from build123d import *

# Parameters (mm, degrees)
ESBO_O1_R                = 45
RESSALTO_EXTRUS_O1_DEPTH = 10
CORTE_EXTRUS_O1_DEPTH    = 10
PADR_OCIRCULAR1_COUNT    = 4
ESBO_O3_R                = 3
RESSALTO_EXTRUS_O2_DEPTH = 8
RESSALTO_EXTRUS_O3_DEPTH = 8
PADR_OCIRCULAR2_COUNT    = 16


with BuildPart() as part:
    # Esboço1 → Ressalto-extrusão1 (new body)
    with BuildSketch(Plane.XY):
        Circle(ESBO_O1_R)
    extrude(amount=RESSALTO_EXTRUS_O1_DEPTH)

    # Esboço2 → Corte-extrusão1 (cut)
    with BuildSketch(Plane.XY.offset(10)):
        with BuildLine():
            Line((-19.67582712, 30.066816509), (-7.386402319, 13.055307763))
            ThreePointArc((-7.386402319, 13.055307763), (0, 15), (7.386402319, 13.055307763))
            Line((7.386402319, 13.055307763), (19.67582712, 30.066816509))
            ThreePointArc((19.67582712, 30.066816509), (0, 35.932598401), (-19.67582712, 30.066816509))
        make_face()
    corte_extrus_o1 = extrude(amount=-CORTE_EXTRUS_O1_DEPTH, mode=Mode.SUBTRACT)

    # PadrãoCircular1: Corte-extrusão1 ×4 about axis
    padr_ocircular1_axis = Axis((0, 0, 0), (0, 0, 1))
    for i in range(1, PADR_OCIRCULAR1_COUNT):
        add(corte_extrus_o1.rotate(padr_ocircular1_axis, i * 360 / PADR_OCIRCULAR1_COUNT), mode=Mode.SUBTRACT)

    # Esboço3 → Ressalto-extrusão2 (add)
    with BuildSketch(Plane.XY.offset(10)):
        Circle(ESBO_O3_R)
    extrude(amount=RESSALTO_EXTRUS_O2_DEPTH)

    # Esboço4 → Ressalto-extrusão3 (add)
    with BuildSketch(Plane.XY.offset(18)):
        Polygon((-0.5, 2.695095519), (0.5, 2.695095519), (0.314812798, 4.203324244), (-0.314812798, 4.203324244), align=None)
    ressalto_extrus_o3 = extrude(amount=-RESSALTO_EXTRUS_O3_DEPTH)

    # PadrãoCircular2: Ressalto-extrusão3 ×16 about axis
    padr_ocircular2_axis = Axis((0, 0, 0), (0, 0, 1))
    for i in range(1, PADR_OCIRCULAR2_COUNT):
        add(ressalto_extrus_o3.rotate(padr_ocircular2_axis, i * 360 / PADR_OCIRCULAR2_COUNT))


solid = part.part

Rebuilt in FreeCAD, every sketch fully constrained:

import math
import FreeCAD as App
import Part
import Sketcher
Q = App.Units.Quantity

doc = App.newDocument("Part")
params = doc.addObject("Spreadsheet::Sheet", "Params")
for row, (alias, value) in enumerate([
    ("sketch1_diameter", "90 mm"),
    ("pad1_length", "10 mm"),
    ("sketch2_radius", "15 mm"),
    ("pocket1_length", "10 mm"),
    ("sketch3_diameter", "6 mm"),
    ("pad2_length", "8 mm"),
    ("sketch4_width", "1 mm"),
    ("pad3_length", "8 mm"),
], start=1):
    params.set(f"A{row}", alias)
    params.set(f"B{row}", "=" + value)
    params.setAlias(f"B{row}", alias)

body = doc.addObject("PartDesign::Body", "Body")

sketch1 = doc.addObject("Sketcher::SketchObject", "Sketch")
body.addObject(sketch1)
sketch1.AttachmentSupport = (doc.XY_Plane, [""])
sketch1.MapMode = "FlatFace"
sketch1.addGeometry(Part.Circle(App.Vector(0, 0, 0), App.Vector(0, 0, 1), 45), False)
sketch1.addConstraint([
    Sketcher.Constraint("Coincident", 0, 3, -1, 1),
    Sketcher.Constraint("Diameter", 0, 90.0),
])
sketch1.setExpression("Constraints[1]", "Params.sketch1_diameter")
pad1 = doc.addObject("PartDesign::Pad", "Pad")
body.addObject(pad1)
pad1.Profile = sketch1
pad1.setExpression("Length", "Params.pad1_length")

sketch2 = doc.addObject("Sketcher::SketchObject", "Sketch001")
body.addObject(sketch2)
sketch2.AttachmentSupport = (doc.XY_Plane, [""])
sketch2.MapMode = "FlatFace"
sketch2.AttachmentOffset = App.Placement(App.Vector(0, 0, 10), App.Rotation())
sketch2.addGeometry([
    Part.LineSegment(App.Vector(-20, 30, 0), App.Vector(-7, 13, 0)),
    Part.ArcOfCircle(Part.Circle(App.Vector(0, 0, 0), App.Vector(0, 0, 1), 15), math.radians(60), math.radians(120)),
    Part.LineSegment(App.Vector(7, 13, 0), App.Vector(20, 30, 0)),
    Part.ArcOfCircle(Part.Circle(App.Vector(0, 0, 0), App.Vector(0, 0, 1), 36), math.radians(57), math.radians(123)),
], False)
sketch2.addConstraint([
    Sketcher.Constraint("Coincident", 0, 2, 1, 2),
    Sketcher.Constraint("Coincident", 1, 1, 2, 1),
    Sketcher.Constraint("Coincident", 2, 2, 3, 1),
    Sketcher.Constraint("Coincident", 3, 2, 0, 1),
    Sketcher.Constraint("Coincident", 1, 3, -1, 1),
    Sketcher.Constraint("Coincident", 3, 3, -1, 1),
    Sketcher.Constraint("Horizontal", 0, 2, 1, 1),
    Sketcher.Constraint("Horizontal", 2, 2, 3, 2),
    Sketcher.Constraint("Radius", 1, 15.0),
    Sketcher.Constraint("Radius", 3, 35.932598),
    Sketcher.Constraint("Distance", 0, 20.986219),
    Sketcher.Constraint("DistanceY", 1, 1, 2, 2, 17.011509),
])
sketch2.setExpression("Constraints[8]", "Params.sketch2_radius")
pocket1 = doc.addObject("PartDesign::Pocket", "Pocket")
body.addObject(pocket1)
pocket1.Profile = sketch2
pocket1.setExpression("Length", "Params.pocket1_length")
doc.recompute()

polarpattern = doc.addObject("PartDesign::PolarPattern", "PolarPattern")
body.addObject(polarpattern)
polarpattern.Originals = [pocket1]
polarpattern.Axis = (doc.Z_Axis, [""])
polarpattern.Angle = 360
polarpattern.Occurrences = 4
body.Tip = polarpattern

sketch3 = doc.addObject("Sketcher::SketchObject", "Sketch002")
body.addObject(sketch3)
sketch3.AttachmentSupport = (doc.XY_Plane, [""])
sketch3.MapMode = "FlatFace"
sketch3.AttachmentOffset = App.Placement(App.Vector(0, 0, 10), App.Rotation())
sketch3.addGeometry(Part.Circle(App.Vector(0, 0, 0), App.Vector(0, 0, 1), 3), False)
sketch3.addConstraint([
    Sketcher.Constraint("Coincident", 0, 3, -1, 1),
    Sketcher.Constraint("Diameter", 0, 6.0),
])
sketch3.setExpression("Constraints[1]", "Params.sketch3_diameter")
pad2 = doc.addObject("PartDesign::Pad", "Pad001")
body.addObject(pad2)
pad2.Profile = sketch3
pad2.setExpression("Length", "Params.pad2_length")

sketch4 = doc.addObject("Sketcher::SketchObject", "Sketch003")
body.addObject(sketch4)
sketch4.AttachmentSupport = (doc.XY_Plane, [""])
sketch4.MapMode = "FlatFace"
sketch4.AttachmentOffset = App.Placement(App.Vector(0, 0, 18), App.Rotation())
sketch4.addGeometry([
    Part.LineSegment(App.Vector(-0.5, 2.7, 0), App.Vector(0.5, 2.7, 0)),
    Part.LineSegment(App.Vector(0.5, 2.7, 0), App.Vector(0.3, 4.2, 0)),
    Part.LineSegment(App.Vector(0.3, 4.2, 0), App.Vector(-0.3, 4.2, 0)),
    Part.LineSegment(App.Vector(-0.3, 4.2, 0), App.Vector(-0.5, 2.7, 0)),
], False)
sketch4.addConstraint([
    Sketcher.Constraint("Coincident", 0, 2, 1, 1),
    Sketcher.Constraint("Coincident", 1, 2, 2, 1),
    Sketcher.Constraint("Coincident", 2, 2, 3, 1),
    Sketcher.Constraint("Coincident", 3, 2, 0, 1),
    Sketcher.Constraint("Horizontal", 0),
    Sketcher.Constraint("Horizontal", 2),
    Sketcher.Constraint("Equal", 1, 3),
    Sketcher.Constraint("DistanceX", 0, 1, 0, 2, 1.0),
    Sketcher.Constraint("Angle", 1, Q("97 deg")),
    Sketcher.Constraint("DistanceX", -1, 1, 0, 2, 0.5),
    Sketcher.Constraint("DistanceX", 2, 2, 2, 1, 0.629626),
    Sketcher.Constraint("DistanceY", -1, 1, 0, 2, 2.695096),
])
sketch4.setExpression("Constraints[7]", "Params.sketch4_width")
pad3 = doc.addObject("PartDesign::Pad", "Pad002")
body.addObject(pad3)
pad3.Profile = sketch4
pad3.setExpression("Length", "Params.pad3_length")
pad3.Reversed = True
doc.recompute()

polarpattern2 = doc.addObject("PartDesign::PolarPattern", "PolarPattern001")
body.addObject(polarpattern2)
polarpattern2.Originals = [pad3]
polarpattern2.Axis = (doc.Z_Axis, [""])
polarpattern2.Angle = 360
polarpattern2.Occurrences = 16
body.Tip = polarpattern2

doc.recompute()
